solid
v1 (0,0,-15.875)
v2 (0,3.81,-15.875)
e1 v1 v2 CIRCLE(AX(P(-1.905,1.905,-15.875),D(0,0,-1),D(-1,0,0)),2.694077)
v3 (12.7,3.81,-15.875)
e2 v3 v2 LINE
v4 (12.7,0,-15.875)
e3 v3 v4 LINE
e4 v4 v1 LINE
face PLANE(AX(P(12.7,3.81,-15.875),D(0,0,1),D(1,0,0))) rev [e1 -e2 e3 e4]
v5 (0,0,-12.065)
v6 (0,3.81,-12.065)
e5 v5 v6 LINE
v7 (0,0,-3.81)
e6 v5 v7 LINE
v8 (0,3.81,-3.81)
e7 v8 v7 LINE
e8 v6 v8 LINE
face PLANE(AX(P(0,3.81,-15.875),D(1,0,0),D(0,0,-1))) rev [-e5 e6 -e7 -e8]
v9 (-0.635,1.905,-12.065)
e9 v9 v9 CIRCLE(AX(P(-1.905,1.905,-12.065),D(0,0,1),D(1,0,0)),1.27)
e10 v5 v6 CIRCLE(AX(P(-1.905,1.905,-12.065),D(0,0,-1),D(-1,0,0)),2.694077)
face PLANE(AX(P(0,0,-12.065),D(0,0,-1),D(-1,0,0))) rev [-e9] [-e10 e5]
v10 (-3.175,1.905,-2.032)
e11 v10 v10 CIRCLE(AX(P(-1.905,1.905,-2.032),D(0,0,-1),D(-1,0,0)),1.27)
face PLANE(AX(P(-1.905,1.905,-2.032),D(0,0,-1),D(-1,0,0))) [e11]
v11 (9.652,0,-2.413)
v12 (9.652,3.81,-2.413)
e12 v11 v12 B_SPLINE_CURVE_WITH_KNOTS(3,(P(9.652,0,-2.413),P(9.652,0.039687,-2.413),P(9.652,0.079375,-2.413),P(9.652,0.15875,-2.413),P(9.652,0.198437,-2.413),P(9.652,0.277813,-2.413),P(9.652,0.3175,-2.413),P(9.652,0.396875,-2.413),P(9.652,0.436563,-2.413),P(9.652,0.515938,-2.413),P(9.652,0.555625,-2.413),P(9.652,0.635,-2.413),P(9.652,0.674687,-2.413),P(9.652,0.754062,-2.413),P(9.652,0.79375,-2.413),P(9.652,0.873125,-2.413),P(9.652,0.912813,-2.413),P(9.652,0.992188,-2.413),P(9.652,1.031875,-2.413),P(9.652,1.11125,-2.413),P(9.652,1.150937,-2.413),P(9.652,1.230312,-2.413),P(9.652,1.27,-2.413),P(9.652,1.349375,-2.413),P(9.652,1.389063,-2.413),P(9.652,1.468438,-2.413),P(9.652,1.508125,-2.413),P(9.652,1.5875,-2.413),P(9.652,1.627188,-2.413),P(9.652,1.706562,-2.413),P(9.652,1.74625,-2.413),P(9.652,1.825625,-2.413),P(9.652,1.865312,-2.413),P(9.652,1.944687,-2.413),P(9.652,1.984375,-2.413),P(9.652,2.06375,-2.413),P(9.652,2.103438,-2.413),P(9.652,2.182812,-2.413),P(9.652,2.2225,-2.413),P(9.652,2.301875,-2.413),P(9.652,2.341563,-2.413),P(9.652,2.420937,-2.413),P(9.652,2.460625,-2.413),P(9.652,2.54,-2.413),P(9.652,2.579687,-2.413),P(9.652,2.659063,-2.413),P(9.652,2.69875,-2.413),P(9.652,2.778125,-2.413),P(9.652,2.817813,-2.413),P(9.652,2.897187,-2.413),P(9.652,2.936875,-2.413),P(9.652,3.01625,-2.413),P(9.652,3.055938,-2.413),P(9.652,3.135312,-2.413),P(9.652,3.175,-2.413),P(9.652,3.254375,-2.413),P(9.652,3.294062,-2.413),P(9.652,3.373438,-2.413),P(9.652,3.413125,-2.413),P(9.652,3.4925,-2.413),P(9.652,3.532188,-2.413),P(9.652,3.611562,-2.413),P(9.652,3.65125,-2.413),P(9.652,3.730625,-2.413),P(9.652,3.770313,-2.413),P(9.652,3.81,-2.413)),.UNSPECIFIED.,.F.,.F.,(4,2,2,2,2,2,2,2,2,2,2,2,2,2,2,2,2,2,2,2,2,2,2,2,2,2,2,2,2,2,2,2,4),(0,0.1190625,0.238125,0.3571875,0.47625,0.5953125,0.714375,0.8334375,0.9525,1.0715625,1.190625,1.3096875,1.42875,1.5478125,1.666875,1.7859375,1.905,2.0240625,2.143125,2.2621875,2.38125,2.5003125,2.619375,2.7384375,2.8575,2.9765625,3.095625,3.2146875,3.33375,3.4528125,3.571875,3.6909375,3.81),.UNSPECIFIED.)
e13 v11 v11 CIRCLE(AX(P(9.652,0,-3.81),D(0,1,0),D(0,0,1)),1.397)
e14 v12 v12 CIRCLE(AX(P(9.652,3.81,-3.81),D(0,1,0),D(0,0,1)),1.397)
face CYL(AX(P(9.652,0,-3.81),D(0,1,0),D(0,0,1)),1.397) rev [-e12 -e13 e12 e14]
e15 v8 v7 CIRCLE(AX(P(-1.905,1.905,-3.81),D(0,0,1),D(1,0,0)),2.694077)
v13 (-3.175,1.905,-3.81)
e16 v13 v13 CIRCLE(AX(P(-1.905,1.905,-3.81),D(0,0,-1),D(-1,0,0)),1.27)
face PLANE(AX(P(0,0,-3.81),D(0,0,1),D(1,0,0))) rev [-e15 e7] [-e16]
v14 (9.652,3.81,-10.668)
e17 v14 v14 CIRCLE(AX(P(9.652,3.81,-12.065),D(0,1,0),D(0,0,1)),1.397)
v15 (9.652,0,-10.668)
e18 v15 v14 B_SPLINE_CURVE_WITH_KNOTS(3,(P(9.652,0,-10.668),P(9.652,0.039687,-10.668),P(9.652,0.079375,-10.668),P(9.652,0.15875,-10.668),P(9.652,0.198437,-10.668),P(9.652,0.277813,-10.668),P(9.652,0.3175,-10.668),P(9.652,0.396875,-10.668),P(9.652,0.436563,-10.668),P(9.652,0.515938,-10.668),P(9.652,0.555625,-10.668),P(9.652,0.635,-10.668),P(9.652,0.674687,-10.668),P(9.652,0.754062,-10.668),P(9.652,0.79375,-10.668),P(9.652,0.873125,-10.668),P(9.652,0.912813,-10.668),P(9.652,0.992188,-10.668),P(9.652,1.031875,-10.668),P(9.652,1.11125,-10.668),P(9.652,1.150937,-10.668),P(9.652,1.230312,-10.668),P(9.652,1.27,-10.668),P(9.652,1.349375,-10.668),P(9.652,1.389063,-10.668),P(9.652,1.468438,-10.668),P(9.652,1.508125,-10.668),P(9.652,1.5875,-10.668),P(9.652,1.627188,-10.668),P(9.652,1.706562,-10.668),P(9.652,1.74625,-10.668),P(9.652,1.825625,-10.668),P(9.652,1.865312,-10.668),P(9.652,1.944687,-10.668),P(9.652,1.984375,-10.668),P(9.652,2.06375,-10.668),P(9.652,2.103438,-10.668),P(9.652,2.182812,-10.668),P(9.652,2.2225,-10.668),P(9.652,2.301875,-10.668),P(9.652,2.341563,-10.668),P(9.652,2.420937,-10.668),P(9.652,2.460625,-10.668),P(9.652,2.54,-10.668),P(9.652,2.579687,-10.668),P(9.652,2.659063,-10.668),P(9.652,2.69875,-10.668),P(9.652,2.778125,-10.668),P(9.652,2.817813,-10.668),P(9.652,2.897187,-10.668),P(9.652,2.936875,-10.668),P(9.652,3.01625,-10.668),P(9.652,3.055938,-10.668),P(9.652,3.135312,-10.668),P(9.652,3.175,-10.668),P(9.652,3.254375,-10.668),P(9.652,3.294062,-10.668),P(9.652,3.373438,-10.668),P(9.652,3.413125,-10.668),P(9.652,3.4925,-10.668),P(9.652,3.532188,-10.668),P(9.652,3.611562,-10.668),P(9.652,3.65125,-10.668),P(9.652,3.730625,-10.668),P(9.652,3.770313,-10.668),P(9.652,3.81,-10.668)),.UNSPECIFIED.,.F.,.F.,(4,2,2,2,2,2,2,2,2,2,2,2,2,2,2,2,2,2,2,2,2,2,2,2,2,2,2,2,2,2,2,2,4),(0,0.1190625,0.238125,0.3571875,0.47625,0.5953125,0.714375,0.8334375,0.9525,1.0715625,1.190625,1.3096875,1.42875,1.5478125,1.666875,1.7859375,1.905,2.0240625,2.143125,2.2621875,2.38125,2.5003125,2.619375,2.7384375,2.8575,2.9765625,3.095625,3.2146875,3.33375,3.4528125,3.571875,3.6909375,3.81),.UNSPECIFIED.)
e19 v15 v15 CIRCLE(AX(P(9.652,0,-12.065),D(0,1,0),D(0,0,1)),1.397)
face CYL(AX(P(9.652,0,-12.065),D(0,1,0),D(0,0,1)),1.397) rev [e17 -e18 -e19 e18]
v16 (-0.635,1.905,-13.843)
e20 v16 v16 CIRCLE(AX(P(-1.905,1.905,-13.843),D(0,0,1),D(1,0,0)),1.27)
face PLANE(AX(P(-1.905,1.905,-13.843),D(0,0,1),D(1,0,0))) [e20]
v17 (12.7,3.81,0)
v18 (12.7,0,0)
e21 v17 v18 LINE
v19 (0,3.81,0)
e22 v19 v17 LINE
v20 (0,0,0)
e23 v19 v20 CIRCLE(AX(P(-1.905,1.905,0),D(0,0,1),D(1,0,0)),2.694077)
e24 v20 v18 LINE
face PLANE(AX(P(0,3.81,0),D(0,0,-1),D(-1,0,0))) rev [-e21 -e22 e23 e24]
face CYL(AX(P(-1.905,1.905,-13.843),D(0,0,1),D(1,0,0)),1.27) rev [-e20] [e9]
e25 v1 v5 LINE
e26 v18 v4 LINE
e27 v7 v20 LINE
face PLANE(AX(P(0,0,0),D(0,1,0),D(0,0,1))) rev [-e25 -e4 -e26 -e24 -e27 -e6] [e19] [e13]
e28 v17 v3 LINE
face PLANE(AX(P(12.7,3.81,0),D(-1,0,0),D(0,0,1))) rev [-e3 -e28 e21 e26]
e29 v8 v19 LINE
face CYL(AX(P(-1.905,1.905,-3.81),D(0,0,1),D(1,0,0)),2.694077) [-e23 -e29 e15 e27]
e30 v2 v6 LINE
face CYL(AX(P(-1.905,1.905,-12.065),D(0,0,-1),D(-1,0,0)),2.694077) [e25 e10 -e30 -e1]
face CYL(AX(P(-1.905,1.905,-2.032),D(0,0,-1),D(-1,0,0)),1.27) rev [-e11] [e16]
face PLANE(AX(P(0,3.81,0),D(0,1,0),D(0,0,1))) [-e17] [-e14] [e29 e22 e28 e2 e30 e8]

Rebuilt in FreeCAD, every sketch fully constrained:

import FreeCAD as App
import Part
import Sketcher
Q = App.Units.Quantity

doc = App.newDocument("Part")
body = doc.addObject("PartDesign::Body", "Body")

# Sketch on XZ plane
sketch1 = body.newObject("Sketcher::SketchObject", "Sketch")
sketch1.AttachmentSupport = (doc.getObject("XZ_Plane"), [""])
sketch1.MapMode = "FlatFace"
sketch1.addGeometry(Part.LineSegment(App.Vector(0, -16, 0), App.Vector(0, 0, 0)), False)
sketch1.addGeometry(Part.LineSegment(App.Vector(0, 0, 0), App.Vector(13, 0, 0)), False)
sketch1.addGeometry(Part.LineSegment(App.Vector(13, 0, 0), App.Vector(13, -16, 0)), False)
sketch1.addGeometry(Part.LineSegment(App.Vector(13, -16, 0), App.Vector(0, -16, 0)), False)
sketch1.addConstraint(Sketcher.Constraint("Coincident", 0, 2, 1, 1))
sketch1.addConstraint(Sketcher.Constraint("Coincident", 1, 2, 2, 1))
sketch1.addConstraint(Sketcher.Constraint("Coincident", 2, 2, 3, 1))
sketch1.addConstraint(Sketcher.Constraint("Coincident", 3, 2, 0, 1))
sketch1.addConstraint(Sketcher.Constraint("Vertical", 0))
sketch1.addConstraint(Sketcher.Constraint("Horizontal", 1))
sketch1.addConstraint(Sketcher.Constraint("Vertical", 2))
sketch1.addConstraint(Sketcher.Constraint("Horizontal", 3))
sketch1.addConstraint(Sketcher.Constraint("Coincident", 0, 2, -1, 1))
sketch1.addConstraint(Sketcher.Constraint("DistanceX", 1, 1, 1, 2, Q("0.5 in")))
sketch1.addConstraint(Sketcher.Constraint("DistanceY", 0, 1, 0, 2, Q("0.625 in")))
pad1 = body.newObject("PartDesign::Pad", "Pad")
pad1.Profile = sketch1
pad1.Length = Q("0.15 in")
pad1.Reversed = True

# Sketch on XZ plane
sketch2 = body.newObject("Sketcher::SketchObject", "Sketch001")
sketch2.AttachmentSupport = (doc.getObject("XZ_Plane"), [""])
sketch2.MapMode = "FlatFace"
sketch2.AttachmentOffset = App.Placement(App.Vector(0, 0, -0.15 * 25.4), App.Rotation())
sketch2.addGeometry(Part.Circle(App.Vector(9.7, -3.8, 0), App.Vector(0, 0, 1), 1.4), False)
sketch2.addGeometry(Part.Circle(App.Vector(9.7, -12.1, 0), App.Vector(0, 0, 1), 1.4), False)
sketch2.addConstraint(Sketcher.Constraint("Equal", 0, 1))
sketch2.addConstraint(Sketcher.Constraint("Vertical", 0, 3, 1, 3))
sketch2.addConstraint(Sketcher.Constraint("Diameter", 0, Q("0.11 in")))
sketch2.addConstraint(Sketcher.Constraint("DistanceX", -1, 1, 0, 3, Q("0.38 in")))
sketch2.addConstraint(Sketcher.Constraint("DistanceY", 0, 3, -1, 1, Q("0.15 in")))
sketch2.addConstraint(Sketcher.Constraint("DistanceY", 1, 3, -1, 1, Q("0.475 in")))
pocket1 = body.newObject("PartDesign::Pocket", "Pocket")
pocket1.Profile = sketch2
pocket1.Length = Q("0.15 in")
pocket1.Reversed = True

# Sketch on XY plane
sketch3 = body.newObject("Sketcher::SketchObject", "Sketch002")
sketch3.AttachmentSupport = (doc.getObject("XY_Plane"), [""])
sketch3.MapMode = "FlatFace"
sketch3.addGeometry(Part.Circle(App.Vector(-1.9, 1.9, 0), App.Vector(0, 0, 1), 2.7), False)
sketch3.addConstraint(Sketcher.Constraint("DistanceX", 0, 3, -1, 1, Q("0.075 in")))
sketch3.addConstraint(Sketcher.Constraint("DistanceY", -1, 1, 0, 3, Q("0.075 in")))
sketch3.addConstraint(Sketcher.Constraint("Diameter", 0, Q("5.388154 mm")))
pad2 = body.newObject("PartDesign::Pad", "Pad001")
pad2.Profile = sketch3
pad2.Length = Q("0.15 in")
pad2.Reversed = True

# Sketch on XY plane
sketch4 = body.newObject("Sketcher::SketchObject", "Sketch003")
sketch4.AttachmentSupport = (doc.getObject("XY_Plane"), [""])
sketch4.MapMode = "FlatFace"
sketch4.AttachmentOffset = App.Placement(App.Vector(0, 0, -0.15 * 25.4), App.Rotation())
sketch4.addGeometry(Part.Circle(App.Vector(-1.9, 1.9, 0), App.Vector(0, 0, 1), 1.3), False)
sketch4.addConstraint(Sketcher.Constraint("Diameter", 0, Q("0.1 in")))
sketch4.addConstraint(Sketcher.Constraint("DistanceX", 0, 3, -1, 1, Q("0.075 in")))
sketch4.addConstraint(Sketcher.Constraint("DistanceY", -1, 1, 0, 3, Q("0.075 in")))
pocket2 = body.newObject("PartDesign::Pocket", "Pocket001")
pocket2.Profile = sketch4
pocket2.Length = Q("0.07 in")
pocket2.Reversed = True

# Sketch on XY plane
sketch5 = body.newObject("Sketcher::SketchObject", "Sketch004")
sketch5.AttachmentSupport = (doc.getObject("XY_Plane"), [""])
sketch5.MapMode = "FlatFace"
sketch5.AttachmentOffset = App.Placement(App.Vector(0, 0, -0.475 * 25.4), App.Rotation())
sketch5.addGeometry(Part.Circle(App.Vector(-1.9, 1.9, 0), App.Vector(0, 0, 1), 2.7), False)
sketch5.addConstraint(Sketcher.Constraint("DistanceX", 0, 3, -1, 1, Q("0.075 in")))
sketch5.addConstraint(Sketcher.Constraint("DistanceY", -1, 1, 0, 3, Q("0.075 in")))
sketch5.addConstraint(Sketcher.Constraint("Diameter", 0, Q("5.388154 mm")))
pad3 = body.newObject("PartDesign::Pad", "Pad002")
pad3.Profile = sketch5
pad3.Length = Q("0.15 in")
pad3.Reversed = True

# Sketch on XY plane
sketch6 = body.newObject("Sketcher::SketchObject", "Sketch005")
sketch6.AttachmentSupport = (doc.getObject("XY_Plane"), [""])
sketch6.MapMode = "FlatFace"
sketch6.AttachmentOffset = App.Placement(App.Vector(0, 0, -0.545 * 25.4), App.Rotation())
sketch6.addGeometry(Part.Circle(App.Vector(-1.9, 1.9, 0), App.Vector(0, 0, 1), 1.3), False)
sketch6.addConstraint(Sketcher.Constraint("Diameter", 0, Q("0.1 in")))
sketch6.addConstraint(Sketcher.Constraint("DistanceX", 0, 3, -1, 1, Q("0.075 in")))
sketch6.addConstraint(Sketcher.Constraint("DistanceY", -1, 1, 0, 3, Q("0.075 in")))
pocket3 = body.newObject("PartDesign::Pocket", "Pocket002")
pocket3.Profile = sketch6
pocket3.Length = Q("0.07 in")
pocket3.Reversed = True

doc.recompute()
